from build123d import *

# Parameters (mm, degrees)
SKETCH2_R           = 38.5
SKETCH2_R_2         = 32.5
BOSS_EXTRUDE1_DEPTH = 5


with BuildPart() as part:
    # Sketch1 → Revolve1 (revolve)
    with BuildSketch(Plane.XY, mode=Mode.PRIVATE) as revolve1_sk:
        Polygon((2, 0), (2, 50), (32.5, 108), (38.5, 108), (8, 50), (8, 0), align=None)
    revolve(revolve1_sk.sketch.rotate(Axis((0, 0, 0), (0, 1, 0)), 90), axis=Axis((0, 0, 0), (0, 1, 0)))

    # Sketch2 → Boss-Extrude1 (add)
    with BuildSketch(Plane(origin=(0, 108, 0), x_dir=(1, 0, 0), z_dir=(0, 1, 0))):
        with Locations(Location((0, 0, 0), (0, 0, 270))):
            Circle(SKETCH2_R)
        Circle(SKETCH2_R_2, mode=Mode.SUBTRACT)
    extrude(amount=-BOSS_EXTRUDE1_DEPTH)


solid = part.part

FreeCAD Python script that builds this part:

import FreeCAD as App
import Part
import Sketcher


def add_polygon(sketch, points):
    """Adds a closed chain of lines whose ends are joined by coincident constraints."""
    first, n = sketch.GeometryCount, len(points)
    for a, b in zip(points, points[1:] + points[:1]):
        sketch.addGeometry(Part.LineSegment(App.Vector(*a, 0), App.Vector(*b, 0)), False)
    for i in range(n):
        sketch.addConstraint(Sketcher.Constraint("Coincident", first + i, 2, first + (i + 1) % n, 1))

doc = App.newDocument("Part")
body = doc.addObject("PartDesign::Body", "Body")

sketch1 = body.newObject("Sketcher::SketchObject", "Sketch")
sketch1.AttachmentSupport = (doc.getObject("XY_Plane"), [""])
sketch1.MapMode = "FlatFace"
add_polygon(sketch1, [(2, 50), (2, 0), (8, 0), (8, 50), (38.5, 108), (32.5, 108)])
sketch1.addConstraint([
    Sketcher.Constraint("Vertical", 0),
    Sketcher.Constraint("Horizontal", 1),
    Sketcher.Constraint("Vertical", 2),
    Sketcher.Constraint("Horizontal", 4),
    Sketcher.Constraint("PointOnObject", 0, 2, -1),
    Sketcher.Constraint("Parallel", 3, 5),
    Sketcher.Constraint("Horizontal", 2, 2, 5, 2),
    Sketcher.Constraint("DistanceX", 1, 1, 1, 2, 6.0),
    Sketcher.Constraint("DistanceY", 0, 2, 0, 1, 50.0),
    Sketcher.Constraint("DistanceX", -1, 1, 0, 2, 2.0),
    Sketcher.Constraint("DistanceY", -1, 1, 3, 2, 108.0),
    Sketcher.Constraint("DistanceX", -1, 1, 3, 2, 38.5),
])
revolution = body.newObject("PartDesign::Revolution", "Revolution")
revolution.Profile = sketch1
revolution.ReferenceAxis = (sketch1, ["V_Axis"])
revolution.Angle = 360

sketch2 = body.newObject("Sketcher::SketchObject", "Sketch001")
sketch2.AttachmentSupport = (doc.getObject("XZ_Plane"), [""])
sketch2.MapMode = "FlatFace"
sketch2.AttachmentOffset = App.Placement(App.Vector(0, 0, -108), App.Rotation())
sketch2.addGeometry([
    Part.Circle(App.Vector(0, 0, 0), App.Vector(0, 0, 1), 38.5),
    Part.Circle(App.Vector(0, 0, 0), App.Vector(0, 0, 1), 32.5),
], False)
sketch2.addConstraint([
    Sketcher.Constraint("Coincident", 0, 3, -1, 1),
    Sketcher.Constraint("Coincident", 1, 3, -1, 1),
    Sketcher.Constraint("Diameter", 0, 77.0),
    Sketcher.Constraint("Diameter", 1, 65.0),
])
pad1 = body.newObject("PartDesign::Pad", "Pad")
pad1.Profile = sketch2
pad1.Length = 5

doc.recompute()
